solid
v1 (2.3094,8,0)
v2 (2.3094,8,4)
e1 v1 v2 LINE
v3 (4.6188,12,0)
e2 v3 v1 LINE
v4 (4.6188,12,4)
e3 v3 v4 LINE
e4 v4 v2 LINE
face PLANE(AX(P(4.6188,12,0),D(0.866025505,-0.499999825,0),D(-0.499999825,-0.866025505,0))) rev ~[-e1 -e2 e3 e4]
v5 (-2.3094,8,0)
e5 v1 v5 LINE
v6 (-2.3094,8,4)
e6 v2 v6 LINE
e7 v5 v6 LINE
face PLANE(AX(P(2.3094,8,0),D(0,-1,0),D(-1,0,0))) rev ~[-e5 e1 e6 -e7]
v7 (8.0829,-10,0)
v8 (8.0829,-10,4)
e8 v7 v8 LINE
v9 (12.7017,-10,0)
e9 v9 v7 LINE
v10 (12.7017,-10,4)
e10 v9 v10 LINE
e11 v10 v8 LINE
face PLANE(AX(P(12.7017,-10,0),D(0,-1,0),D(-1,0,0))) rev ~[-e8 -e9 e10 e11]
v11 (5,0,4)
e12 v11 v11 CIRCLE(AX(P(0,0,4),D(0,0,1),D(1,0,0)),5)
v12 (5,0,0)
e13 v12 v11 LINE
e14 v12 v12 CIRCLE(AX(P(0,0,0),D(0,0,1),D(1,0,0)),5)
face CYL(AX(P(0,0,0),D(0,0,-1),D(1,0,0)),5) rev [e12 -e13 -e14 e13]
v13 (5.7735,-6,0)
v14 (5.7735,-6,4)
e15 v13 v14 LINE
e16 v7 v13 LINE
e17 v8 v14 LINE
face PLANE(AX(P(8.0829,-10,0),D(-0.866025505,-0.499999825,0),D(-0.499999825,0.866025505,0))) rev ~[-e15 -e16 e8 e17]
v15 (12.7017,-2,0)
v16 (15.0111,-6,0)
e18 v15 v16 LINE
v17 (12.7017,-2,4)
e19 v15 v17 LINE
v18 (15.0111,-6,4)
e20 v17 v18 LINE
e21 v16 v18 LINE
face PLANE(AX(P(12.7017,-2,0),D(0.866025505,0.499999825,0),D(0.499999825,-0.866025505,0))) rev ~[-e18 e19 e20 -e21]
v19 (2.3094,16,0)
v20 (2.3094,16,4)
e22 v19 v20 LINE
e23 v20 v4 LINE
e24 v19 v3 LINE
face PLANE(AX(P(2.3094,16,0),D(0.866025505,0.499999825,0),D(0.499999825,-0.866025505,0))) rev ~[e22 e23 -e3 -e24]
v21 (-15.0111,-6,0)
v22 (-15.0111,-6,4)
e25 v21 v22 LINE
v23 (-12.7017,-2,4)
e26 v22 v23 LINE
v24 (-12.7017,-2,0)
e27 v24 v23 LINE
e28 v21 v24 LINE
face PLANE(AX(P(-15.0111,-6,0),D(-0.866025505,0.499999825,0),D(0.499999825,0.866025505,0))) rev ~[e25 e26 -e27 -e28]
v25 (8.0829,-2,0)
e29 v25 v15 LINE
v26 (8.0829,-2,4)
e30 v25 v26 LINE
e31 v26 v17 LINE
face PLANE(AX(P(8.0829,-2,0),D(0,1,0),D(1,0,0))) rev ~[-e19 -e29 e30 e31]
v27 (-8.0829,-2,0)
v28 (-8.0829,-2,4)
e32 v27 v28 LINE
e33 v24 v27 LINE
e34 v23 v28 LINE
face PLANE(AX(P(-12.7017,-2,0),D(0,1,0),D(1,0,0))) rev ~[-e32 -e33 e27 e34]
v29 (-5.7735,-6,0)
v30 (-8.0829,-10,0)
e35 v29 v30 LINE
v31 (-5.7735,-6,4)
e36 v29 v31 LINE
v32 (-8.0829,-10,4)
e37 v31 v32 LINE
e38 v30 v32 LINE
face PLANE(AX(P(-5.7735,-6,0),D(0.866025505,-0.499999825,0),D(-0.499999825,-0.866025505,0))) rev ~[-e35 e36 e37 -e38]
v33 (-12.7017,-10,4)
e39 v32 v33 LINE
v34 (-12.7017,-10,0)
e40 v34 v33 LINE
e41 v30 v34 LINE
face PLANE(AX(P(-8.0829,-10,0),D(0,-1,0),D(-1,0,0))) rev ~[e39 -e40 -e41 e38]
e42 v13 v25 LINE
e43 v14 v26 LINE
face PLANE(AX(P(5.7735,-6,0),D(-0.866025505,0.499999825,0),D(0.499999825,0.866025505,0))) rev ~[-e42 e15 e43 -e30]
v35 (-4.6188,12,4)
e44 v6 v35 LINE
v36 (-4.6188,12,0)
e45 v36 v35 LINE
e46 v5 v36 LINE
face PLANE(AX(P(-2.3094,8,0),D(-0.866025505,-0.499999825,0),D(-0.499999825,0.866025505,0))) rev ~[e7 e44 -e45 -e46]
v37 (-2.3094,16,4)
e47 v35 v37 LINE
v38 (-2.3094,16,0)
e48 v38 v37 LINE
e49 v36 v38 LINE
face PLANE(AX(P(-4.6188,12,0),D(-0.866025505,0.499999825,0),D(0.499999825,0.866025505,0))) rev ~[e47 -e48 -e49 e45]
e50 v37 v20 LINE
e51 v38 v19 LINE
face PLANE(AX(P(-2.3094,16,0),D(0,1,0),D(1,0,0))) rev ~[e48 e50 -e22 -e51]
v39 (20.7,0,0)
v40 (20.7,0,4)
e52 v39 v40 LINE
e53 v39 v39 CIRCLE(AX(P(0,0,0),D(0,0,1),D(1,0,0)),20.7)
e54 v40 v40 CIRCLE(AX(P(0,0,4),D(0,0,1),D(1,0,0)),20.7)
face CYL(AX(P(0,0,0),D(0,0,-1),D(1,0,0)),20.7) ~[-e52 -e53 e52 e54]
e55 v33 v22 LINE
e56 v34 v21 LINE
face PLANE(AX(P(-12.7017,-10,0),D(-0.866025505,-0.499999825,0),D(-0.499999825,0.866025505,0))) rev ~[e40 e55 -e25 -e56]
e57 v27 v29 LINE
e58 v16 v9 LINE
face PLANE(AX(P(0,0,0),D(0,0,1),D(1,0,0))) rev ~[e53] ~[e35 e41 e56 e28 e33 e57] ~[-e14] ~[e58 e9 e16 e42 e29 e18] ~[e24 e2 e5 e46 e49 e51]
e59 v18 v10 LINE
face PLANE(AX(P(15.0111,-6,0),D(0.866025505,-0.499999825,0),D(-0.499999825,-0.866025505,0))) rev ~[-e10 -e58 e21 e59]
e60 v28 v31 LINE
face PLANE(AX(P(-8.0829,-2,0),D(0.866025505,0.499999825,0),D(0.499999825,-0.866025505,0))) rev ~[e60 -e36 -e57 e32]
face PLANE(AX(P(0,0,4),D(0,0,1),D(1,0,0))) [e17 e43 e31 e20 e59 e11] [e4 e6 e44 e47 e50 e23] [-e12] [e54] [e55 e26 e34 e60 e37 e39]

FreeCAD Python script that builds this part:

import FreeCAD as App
import Part
import Sketcher

V = App.Vector
Q = App.Units.Quantity


def add_polygon(sketch, points):
    """Adds a closed chain of lines whose ends are joined by coincident constraints."""
    first, n = sketch.GeometryCount, len(points)
    for a, b in zip(points, points[1:] + points[:1]):
        sketch.addGeometry(Part.LineSegment(App.Vector(*a, 0), App.Vector(*b, 0)), False)
    for i in range(n):
        sketch.addConstraint(Sketcher.Constraint("Coincident", first + i, 2, first + (i + 1) % n, 1))

doc = App.newDocument("Part")
body = doc.addObject("PartDesign::Body", "Body")

# Sketch on XY plane
sketch1 = doc.addObject("Sketcher::SketchObject", "Sketch")
body.addObject(sketch1)
sketch1.AttachmentSupport = (doc.XY_Plane, [""])
sketch1.MapMode = "FlatFace"
sketch1.addGeometry(Part.Circle(V(0, 0, 0), V(0, 0, 1), 20.7), False)  # 0
add_polygon(sketch1, [(-5.8, -6), (-8.1, -10), (-12.7, -10), (-15, -6), (-12.7, -2), (-8.1, -2)])  # lines 1-6
add_polygon(sketch1, [(8.1, -2), (12.7, -2), (15, -6), (12.7, -10), (8.1, -10), (5.8, -6)])  # lines 7-12
sketch1.addGeometry(Part.Circle(V(0, 0, 0), V(0, 0, 1), 5), False)  # 13
add_polygon(sketch1, [(4.6, 12), (2.3, 8), (-2.3, 8), (-4.6, 12), (-2.3, 16), (2.3, 16)])  # lines 14-19
sketch1.addConstraint(Sketcher.Constraint("Horizontal", 2))
sketch1.addConstraint(Sketcher.Constraint("Horizontal", 5))
sketch1.addConstraint(Sketcher.Constraint("Horizontal", 7))
sketch1.addConstraint(Sketcher.Constraint("Horizontal", 10))
sketch1.addConstraint(Sketcher.Constraint("Horizontal", 15))
sketch1.addConstraint(Sketcher.Constraint("Horizontal", 18))
sketch1.addConstraint(Sketcher.Constraint("Coincident", 0, 3, -1, 1))
sketch1.addConstraint(Sketcher.Constraint("Coincident", 13, 3, -1, 1))
sketch1.addConstraint(Sketcher.Constraint("Symmetric", 4, 2, 7, 2, -2))
sketch1.addConstraint(Sketcher.Constraint("Symmetric", 3, 2, 8, 2, -2))
sketch1.addConstraint(Sketcher.Constraint("Symmetric", 2, 2, 9, 2, -2))
sketch1.addConstraint(Sketcher.Constraint("Symmetric", 6, 2, 11, 2, -2))
sketch1.addConstraint(Sketcher.Constraint("Symmetric", 16, 2, 19, 2, -2))
sketch1.addConstraint(Sketcher.Constraint("Parallel", 1, 4))
sketch1.addConstraint(Sketcher.Constraint("Parallel", 3, 6))
sketch1.addConstraint(Sketcher.Constraint("Parallel", 6, 8))
sketch1.addConstraint(Sketcher.Constraint("Parallel", 8, 11))
sketch1.addConstraint(Sketcher.Constraint("Parallel", 9, 12))
sketch1.addConstraint(Sketcher.Constraint("Parallel", 12, 14))
sketch1.addConstraint(Sketcher.Constraint("Parallel", 11, 16))
sketch1.addConstraint(Sketcher.Constraint("Parallel", 14, 17))
sketch1.addConstraint(Sketcher.Constraint("Parallel", 16, 19))
sketch1.addConstraint(Sketcher.Constraint("Horizontal", 3, 2, 6, 2))
sketch1.addConstraint(Sketcher.Constraint("Vertical", 2, 2, 4, 2))
sketch1.addConstraint(Sketcher.Constraint("Vertical", 15, 2, 17, 2))
sketch1.addConstraint(Sketcher.Constraint("Equal", 10, 15))
sketch1.addConstraint(Sketcher.Constraint("Equal", 12, 14))
sketch1.addConstraint(Sketcher.Constraint("Diameter", 13, Q("10 mm")))
sketch1.addConstraint(Sketcher.Constraint("Diameter", 0, Q("41.4 mm")))
sketch1.addConstraint(Sketcher.Constraint("DistanceY", 1, 2, -1, 1, Q("10 mm")))
sketch1.addConstraint(Sketcher.Constraint("DistanceY", -1, 1, 14, 2, Q("8 mm")))
sketch1.addConstraint(Sketcher.Constraint("DistanceY", -1, 1, 16, 2, Q("12 mm")))
sketch1.addConstraint(Sketcher.Constraint("Angle", 1, Q("-120 deg")))
sketch1.addConstraint(Sketcher.Constraint("DistanceX", 2, 2, 2, 1, Q("4.6188 mm")))
sketch1.addConstraint(Sketcher.Constraint("DistanceX", 1, 2, -1, 1, Q("8.083 mm")))
pad1 = doc.addObject("PartDesign::Pad", "Pad")
body.addObject(pad1)
pad1.Profile = sketch1
pad1.Length = 4

doc.recompute()
